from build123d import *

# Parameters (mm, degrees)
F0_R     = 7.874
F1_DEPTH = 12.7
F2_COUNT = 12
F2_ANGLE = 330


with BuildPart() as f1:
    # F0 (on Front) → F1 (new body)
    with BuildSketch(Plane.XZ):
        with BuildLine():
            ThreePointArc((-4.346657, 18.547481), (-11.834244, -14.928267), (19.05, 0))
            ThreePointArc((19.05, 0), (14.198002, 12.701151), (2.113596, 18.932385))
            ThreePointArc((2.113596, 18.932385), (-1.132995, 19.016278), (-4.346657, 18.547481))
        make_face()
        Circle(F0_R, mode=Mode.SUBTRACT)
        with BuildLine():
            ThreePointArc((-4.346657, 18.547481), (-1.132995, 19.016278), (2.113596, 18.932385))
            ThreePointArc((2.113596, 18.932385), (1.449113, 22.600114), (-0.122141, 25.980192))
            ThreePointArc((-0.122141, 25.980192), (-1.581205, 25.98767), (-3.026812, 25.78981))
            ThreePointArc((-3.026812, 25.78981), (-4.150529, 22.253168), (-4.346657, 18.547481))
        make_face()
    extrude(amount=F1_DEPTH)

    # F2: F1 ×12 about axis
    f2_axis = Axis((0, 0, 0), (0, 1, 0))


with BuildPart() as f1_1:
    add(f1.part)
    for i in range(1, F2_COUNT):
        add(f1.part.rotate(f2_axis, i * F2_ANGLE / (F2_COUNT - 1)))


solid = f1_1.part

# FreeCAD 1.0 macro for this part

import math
import FreeCAD as App
import Part
import Sketcher
from FreeCAD import Vector
Q = App.Units.Quantity

doc = App.newDocument("Part")
body = doc.addObject("PartDesign::Body", "Body")

# Sketch on XZ plane
sketch1 = doc.addObject("Sketcher::SketchObject", "Sketch")
body.addObject(sketch1)
sketch1.AttachmentSupport = (doc.XZ_Plane, [""])
sketch1.MapMode = "FlatFace"
sketch1.addGeometry([
    Part.ArcOfCircle(Part.Circle(Vector(0, 0, 0), Vector(0, 0, 1), 19), math.radians(103), math.radians(360)),  # 0
    Part.ArcOfCircle(Part.Circle(Vector(0, 0, 0), Vector(0, 0, 1), 19), math.radians(0), math.radians(84)),  # 1
    Part.ArcOfCircle(Part.Circle(Vector(-12.5, 18.2, 0), Vector(0, 0, 1), 14.6), math.radians(3), math.radians(32)),  # 2
    Part.ArcOfCircle(Part.Circle(Vector(-0.9, 15.7, 0), Vector(0, 0, 1), 10.3), math.radians(85.66), math.radians(101.84)),  # 3
    Part.ArcOfCircle(Part.Circle(Vector(10.2, 19.6, 0), Vector(0, 0, 1), 14.6), math.radians(155), math.radians(184)),  # 4
    Part.Circle(Vector(0, 0, 0), Vector(0, 0, 1), 7.9),  # 5
], False)
sketch1.addConstraint([
    Sketcher.Constraint("Tangent", 0, 2, 1, 1),
    Sketcher.Constraint("Coincident", 1, 2, 2, 1),
    Sketcher.Constraint("Coincident", 2, 2, 3, 1),
    Sketcher.Constraint("Coincident", 3, 2, 4, 1),
    Sketcher.Constraint("Coincident", 4, 2, 0, 1),
    Sketcher.Constraint("Coincident", 0, 3, -1, 1),
    Sketcher.Constraint("Coincident", 5, 3, -1, 1),
    Sketcher.Constraint("Equal", 0, 1),
    Sketcher.Constraint("PointOnObject", 0, 2, -1),
    Sketcher.Constraint("Diameter", 5, Q("0.62 in")),
    Sketcher.Constraint("Radius", 0, Q("0.75 in")),
    Sketcher.Constraint("Radius", 2, 14.604994),
    Sketcher.Constraint("Radius", 3, 10.345717),
    Sketcher.Constraint("Radius", 4, 14.605012),
    Sketcher.Constraint("DistanceX", 3, 3, 4, 3, 11.122398),
    Sketcher.Constraint("DistanceY", -1, 1, 2, 3, 18.183929),
    Sketcher.Constraint("DistanceY", -1, 1, 4, 3, 19.634671),
    Sketcher.Constraint("DistanceX", 2, 2, -1, 1, 0.122141),
    Sketcher.Constraint("DistanceY", -1, 1, 2, 2, 25.980192),
    Sketcher.Constraint("DistanceX", 3, 2, -1, 1, 3.026812),
])
pad1 = doc.addObject("PartDesign::Pad", "Pad")
body.addObject(pad1)
pad1.Profile = sketch1
pad1.Length = Q("0.5 in")
body2 = doc.addObject("PartDesign::Body", "Body001")
doc.recompute()

body2.BaseFeature = body
doc.recompute()

body3 = doc.addObject("PartDesign::Body", "Body002")
body3.BaseFeature = body
body3.Placement = App.Placement(Vector(0, 0, 0), App.Rotation(Vector(0, 1, 0), 30))
boolean = doc.addObject("PartDesign::Boolean", "Boolean")
body2.addObject(boolean)
boolean.Type = "Fuse"
boolean.addObjects([body3])
doc.recompute()

body4 = doc.addObject("PartDesign::Body", "Body003")
body4.BaseFeature = body
body4.Placement = App.Placement(Vector(0, 0, 0), App.Rotation(Vector(0, 1, 0), 60))
boolean2 = doc.addObject("PartDesign::Boolean", "Boolean001")
body2.addObject(boolean2)
boolean2.Type = "Fuse"
boolean2.addObjects([body4])
doc.recompute()

body5 = doc.addObject("PartDesign::Body", "Body004")
body5.BaseFeature = body
body5.Placement = App.Placement(Vector(0, 0, 0), App.Rotation(Vector(0, 1, 0), 90))
boolean3 = doc.addObject("PartDesign::Boolean", "Boolean002")
body2.addObject(boolean3)
boolean3.Type = "Fuse"
boolean3.addObjects([body5])
doc.recompute()

body6 = doc.addObject("PartDesign::Body", "Body005")
body6.BaseFeature = body
body6.Placement = App.Placement(Vector(0, 0, 0), App.Rotation(Vector(0, 1, 0), 120))
boolean4 = doc.addObject("PartDesign::Boolean", "Boolean003")
body2.addObject(boolean4)
boolean4.Type = "Fuse"
boolean4.addObjects([body6])
doc.recompute()

body7 = doc.addObject("PartDesign::Body", "Body006")
body7.BaseFeature = body
body7.Placement = App.Placement(Vector(0, 0, 0), App.Rotation(Vector(0, 1, 0), 150))
boolean5 = doc.addObject("PartDesign::Boolean", "Boolean004")
body2.addObject(boolean5)
boolean5.Type = "Fuse"
boolean5.addObjects([body7])
doc.recompute()

body8 = doc.addObject("PartDesign::Body", "Body007")
body8.BaseFeature = body
body8.Placement = App.Placement(Vector(0, 0, 0), App.Rotation(Vector(0, 1, 0), 180))
boolean6 = doc.addObject("PartDesign::Boolean", "Boolean005")
body2.addObject(boolean6)
boolean6.Type = "Fuse"
boolean6.addObjects([body8])
doc.recompute()

body9 = doc.addObject("PartDesign::Body", "Body008")
body9.BaseFeature = body
body9.Placement = App.Placement(Vector(0, 0, 0), App.Rotation(Vector(0, 1, 0), 210))
boolean7 = doc.addObject("PartDesign::Boolean", "Boolean006")
body2.addObject(boolean7)
boolean7.Type = "Fuse"
boolean7.addObjects([body9])
doc.recompute()

body10 = doc.addObject("PartDesign::Body", "Body009")
body10.BaseFeature = body
body10.Placement = App.Placement(Vector(0, 0, 0), App.Rotation(Vector(0, 1, 0), 240))
boolean8 = doc.addObject("PartDesign::Boolean", "Boolean007")
body2.addObject(boolean8)
boolean8.Type = "Fuse"
boolean8.addObjects([body10])
doc.recompute()

body11 = doc.addObject("PartDesign::Body", "Body010")
body11.BaseFeature = body
body11.Placement = App.Placement(Vector(0, 0, 0), App.Rotation(Vector(0, 1, 0), 270))
boolean9 = doc.addObject("PartDesign::Boolean", "Boolean008")
body2.addObject(boolean9)
boolean9.Type = "Fuse"
boolean9.addObjects([body11])
doc.recompute()

body12 = doc.addObject("PartDesign::Body", "Body011")
body12.BaseFeature = body
body12.Placement = App.Placement(Vector(0, 0, 0), App.Rotation(Vector(0, 1, 0), 300))
boolean10 = doc.addObject("PartDesign::Boolean", "Boolean009")
body2.addObject(boolean10)
boolean10.Type = "Fuse"
boolean10.addObjects([body12])
doc.recompute()

body.Placement = App.Placement(Vector(0, 0, 0), App.Rotation(Vector(0, 1, 0), 330))
boolean11 = doc.addObject("PartDesign::Boolean", "Boolean010")
body2.addObject(boolean11)
boolean11.Type = "Fuse"
boolean11.addObjects([body])

doc.recompute()
